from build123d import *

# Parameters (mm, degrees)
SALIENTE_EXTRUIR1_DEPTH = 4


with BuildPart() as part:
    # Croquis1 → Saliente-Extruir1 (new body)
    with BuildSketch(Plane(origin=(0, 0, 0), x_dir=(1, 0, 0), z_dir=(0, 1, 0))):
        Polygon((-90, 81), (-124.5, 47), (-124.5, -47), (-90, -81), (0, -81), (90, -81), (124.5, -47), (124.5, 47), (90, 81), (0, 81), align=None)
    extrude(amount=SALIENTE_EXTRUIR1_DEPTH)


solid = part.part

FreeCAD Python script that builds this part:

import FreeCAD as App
import Part
import Sketcher
from FreeCAD import Vector


def add_polygon(sketch, points):
    """Adds a closed chain of lines whose ends are joined by coincident constraints."""
    first, n = sketch.GeometryCount, len(points)
    for a, b in zip(points, points[1:] + points[:1]):
        sketch.addGeometry(Part.LineSegment(App.Vector(*a, 0), App.Vector(*b, 0)), False)
    for i in range(n):
        sketch.addConstraint(Sketcher.Constraint("Coincident", first + i, 2, first + (i + 1) % n, 1))

doc = App.newDocument("Part")
body = doc.addObject("PartDesign::Body", "Body")

# Sketch on XZ plane
sketch1 = body.newObject("Sketcher::SketchObject", "Sketch")
sketch1.AttachmentSupport = (doc.getObject("XZ_Plane"), [""])
sketch1.MapMode = "FlatFace"
add_polygon(sketch1, [(-90, -81), (-124, -47), (-124, 47), (-90, 81), (90, 81), (124, 47), (124, -47), (90, -81)])  # lines 0-7
sketch1.addConstraint([
    Sketcher.Constraint("Vertical", 1),
    Sketcher.Constraint("Horizontal", 3),
    Sketcher.Constraint("Vertical", 5),
    Sketcher.Constraint("Horizontal", 7),
    Sketcher.Constraint("Symmetric", 0, 2, 4, 2, -1, 1),
    Sketcher.Constraint("Symmetric", 2, 2, 6, 2, -1, 1),
    Sketcher.Constraint("Parallel", 0, 4),
    Sketcher.Constraint("Parallel", 2, 6),
    Sketcher.Constraint("Horizontal", 1, 2, 4, 2),
    Sketcher.Constraint("Vertical", 3, 2, 6, 2),
    Sketcher.Constraint("DistanceX", 3, 1, 3, 2, 180.0),
    Sketcher.Constraint("DistanceY", 1, 1, 1, 2, 94.0),
    Sketcher.Constraint("DistanceY", -1, 1, 2, 2, 81.0),
    Sketcher.Constraint("DistanceX", 1, 2, 4, 2, 249.0),
])
pad1 = body.newObject("PartDesign::Pad", "Pad")
pad1.Profile = sketch1
pad1.Length = 4
pad1.Reversed = True

doc.recompute()
